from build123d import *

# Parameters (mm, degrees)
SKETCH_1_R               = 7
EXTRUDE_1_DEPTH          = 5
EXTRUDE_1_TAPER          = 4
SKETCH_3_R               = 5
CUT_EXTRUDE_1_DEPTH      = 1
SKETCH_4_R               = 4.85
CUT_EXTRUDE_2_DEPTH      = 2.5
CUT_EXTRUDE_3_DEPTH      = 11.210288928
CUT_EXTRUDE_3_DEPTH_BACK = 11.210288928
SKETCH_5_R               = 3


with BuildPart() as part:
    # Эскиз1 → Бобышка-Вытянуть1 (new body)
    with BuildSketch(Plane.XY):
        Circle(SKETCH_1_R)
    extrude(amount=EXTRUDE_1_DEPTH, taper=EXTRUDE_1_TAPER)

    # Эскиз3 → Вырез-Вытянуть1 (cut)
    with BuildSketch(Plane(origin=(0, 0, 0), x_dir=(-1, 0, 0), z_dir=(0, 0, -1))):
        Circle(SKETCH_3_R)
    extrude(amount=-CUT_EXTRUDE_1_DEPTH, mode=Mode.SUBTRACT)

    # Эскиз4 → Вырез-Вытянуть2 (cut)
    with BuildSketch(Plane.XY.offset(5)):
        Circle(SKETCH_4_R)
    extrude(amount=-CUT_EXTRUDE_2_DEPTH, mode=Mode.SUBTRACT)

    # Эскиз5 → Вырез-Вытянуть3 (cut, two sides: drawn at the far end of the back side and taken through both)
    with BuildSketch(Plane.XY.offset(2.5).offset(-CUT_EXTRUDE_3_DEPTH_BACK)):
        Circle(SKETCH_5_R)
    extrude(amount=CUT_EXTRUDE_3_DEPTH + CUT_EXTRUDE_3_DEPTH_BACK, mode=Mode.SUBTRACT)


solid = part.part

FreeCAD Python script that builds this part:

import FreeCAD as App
import Part
import Sketcher
Q = App.Units.Quantity

doc = App.newDocument("Part")
body = doc.addObject("PartDesign::Body", "Body")

# Sketch on XY plane
sketch1 = body.newObject("Sketcher::SketchObject", "Sketch")
sketch1.AttachmentSupport = (doc.getObject("XY_Plane"), [""])
sketch1.MapMode = "FlatFace"
sketch1.addGeometry(Part.Circle(App.Vector(0, 0, 0), App.Vector(0, 0, 1), 7), False)
sketch1.addConstraint([
    Sketcher.Constraint("Coincident", 0, 3, -1, 1),
    Sketcher.Constraint("Diameter", 0, Q("14 mm")),
])
pad1 = body.newObject("PartDesign::Pad", "Pad")
pad1.Profile = sketch1
pad1.Length = 5
pad1.TaperAngle = -4

# Sketch on XY plane
sketch2 = body.newObject("Sketcher::SketchObject", "Sketch001")
sketch2.AttachmentSupport = (doc.getObject("XY_Plane"), [""])
sketch2.MapMode = "FlatFace"
sketch2.addGeometry(Part.Circle(App.Vector(0, 0, 0), App.Vector(0, 0, 1), 5), False)
sketch2.addConstraint([
    Sketcher.Constraint("Coincident", 0, 3, -1, 1),
    Sketcher.Constraint("Diameter", 0, Q("10 mm")),
])
pocket1 = body.newObject("PartDesign::Pocket", "Pocket")
pocket1.Profile = sketch2
pocket1.Length = 1
pocket1.Reversed = True

# Sketch on XY plane
sketch3 = body.newObject("Sketcher::SketchObject", "Sketch002")
sketch3.AttachmentSupport = (doc.getObject("XY_Plane"), [""])
sketch3.MapMode = "FlatFace"
sketch3.AttachmentOffset = App.Placement(App.Vector(0, 0, 5), App.Rotation())
sketch3.addGeometry(Part.Circle(App.Vector(0, 0, 0), App.Vector(0, 0, 1), 4.85), False)
sketch3.addConstraint([
    Sketcher.Constraint("Coincident", 0, 3, -1, 1),
    Sketcher.Constraint("Diameter", 0, Q("9.7 mm")),
])
pocket2 = body.newObject("PartDesign::Pocket", "Pocket001")
pocket2.Profile = sketch3
pocket2.Length = 2.5

# Sketch on XY plane
sketch4 = body.newObject("Sketcher::SketchObject", "Sketch003")
sketch4.AttachmentSupport = (doc.getObject("XY_Plane"), [""])
sketch4.MapMode = "FlatFace"
sketch4.AttachmentOffset = App.Placement(App.Vector(0, 0, 2.5), App.Rotation())
sketch4.addGeometry(Part.Circle(App.Vector(0, 0, 0), App.Vector(0, 0, 1), 3), False)
sketch4.addConstraint([
    Sketcher.Constraint("Coincident", 0, 3, -1, 1),
    Sketcher.Constraint("Diameter", 0, Q("6 mm")),
])
pocket3 = body.newObject("PartDesign::Pocket", "Pocket002")
pocket3.Profile = sketch4
pocket3.Type = "ThroughAll"
pocket3.Midplane = True

doc.recompute()
